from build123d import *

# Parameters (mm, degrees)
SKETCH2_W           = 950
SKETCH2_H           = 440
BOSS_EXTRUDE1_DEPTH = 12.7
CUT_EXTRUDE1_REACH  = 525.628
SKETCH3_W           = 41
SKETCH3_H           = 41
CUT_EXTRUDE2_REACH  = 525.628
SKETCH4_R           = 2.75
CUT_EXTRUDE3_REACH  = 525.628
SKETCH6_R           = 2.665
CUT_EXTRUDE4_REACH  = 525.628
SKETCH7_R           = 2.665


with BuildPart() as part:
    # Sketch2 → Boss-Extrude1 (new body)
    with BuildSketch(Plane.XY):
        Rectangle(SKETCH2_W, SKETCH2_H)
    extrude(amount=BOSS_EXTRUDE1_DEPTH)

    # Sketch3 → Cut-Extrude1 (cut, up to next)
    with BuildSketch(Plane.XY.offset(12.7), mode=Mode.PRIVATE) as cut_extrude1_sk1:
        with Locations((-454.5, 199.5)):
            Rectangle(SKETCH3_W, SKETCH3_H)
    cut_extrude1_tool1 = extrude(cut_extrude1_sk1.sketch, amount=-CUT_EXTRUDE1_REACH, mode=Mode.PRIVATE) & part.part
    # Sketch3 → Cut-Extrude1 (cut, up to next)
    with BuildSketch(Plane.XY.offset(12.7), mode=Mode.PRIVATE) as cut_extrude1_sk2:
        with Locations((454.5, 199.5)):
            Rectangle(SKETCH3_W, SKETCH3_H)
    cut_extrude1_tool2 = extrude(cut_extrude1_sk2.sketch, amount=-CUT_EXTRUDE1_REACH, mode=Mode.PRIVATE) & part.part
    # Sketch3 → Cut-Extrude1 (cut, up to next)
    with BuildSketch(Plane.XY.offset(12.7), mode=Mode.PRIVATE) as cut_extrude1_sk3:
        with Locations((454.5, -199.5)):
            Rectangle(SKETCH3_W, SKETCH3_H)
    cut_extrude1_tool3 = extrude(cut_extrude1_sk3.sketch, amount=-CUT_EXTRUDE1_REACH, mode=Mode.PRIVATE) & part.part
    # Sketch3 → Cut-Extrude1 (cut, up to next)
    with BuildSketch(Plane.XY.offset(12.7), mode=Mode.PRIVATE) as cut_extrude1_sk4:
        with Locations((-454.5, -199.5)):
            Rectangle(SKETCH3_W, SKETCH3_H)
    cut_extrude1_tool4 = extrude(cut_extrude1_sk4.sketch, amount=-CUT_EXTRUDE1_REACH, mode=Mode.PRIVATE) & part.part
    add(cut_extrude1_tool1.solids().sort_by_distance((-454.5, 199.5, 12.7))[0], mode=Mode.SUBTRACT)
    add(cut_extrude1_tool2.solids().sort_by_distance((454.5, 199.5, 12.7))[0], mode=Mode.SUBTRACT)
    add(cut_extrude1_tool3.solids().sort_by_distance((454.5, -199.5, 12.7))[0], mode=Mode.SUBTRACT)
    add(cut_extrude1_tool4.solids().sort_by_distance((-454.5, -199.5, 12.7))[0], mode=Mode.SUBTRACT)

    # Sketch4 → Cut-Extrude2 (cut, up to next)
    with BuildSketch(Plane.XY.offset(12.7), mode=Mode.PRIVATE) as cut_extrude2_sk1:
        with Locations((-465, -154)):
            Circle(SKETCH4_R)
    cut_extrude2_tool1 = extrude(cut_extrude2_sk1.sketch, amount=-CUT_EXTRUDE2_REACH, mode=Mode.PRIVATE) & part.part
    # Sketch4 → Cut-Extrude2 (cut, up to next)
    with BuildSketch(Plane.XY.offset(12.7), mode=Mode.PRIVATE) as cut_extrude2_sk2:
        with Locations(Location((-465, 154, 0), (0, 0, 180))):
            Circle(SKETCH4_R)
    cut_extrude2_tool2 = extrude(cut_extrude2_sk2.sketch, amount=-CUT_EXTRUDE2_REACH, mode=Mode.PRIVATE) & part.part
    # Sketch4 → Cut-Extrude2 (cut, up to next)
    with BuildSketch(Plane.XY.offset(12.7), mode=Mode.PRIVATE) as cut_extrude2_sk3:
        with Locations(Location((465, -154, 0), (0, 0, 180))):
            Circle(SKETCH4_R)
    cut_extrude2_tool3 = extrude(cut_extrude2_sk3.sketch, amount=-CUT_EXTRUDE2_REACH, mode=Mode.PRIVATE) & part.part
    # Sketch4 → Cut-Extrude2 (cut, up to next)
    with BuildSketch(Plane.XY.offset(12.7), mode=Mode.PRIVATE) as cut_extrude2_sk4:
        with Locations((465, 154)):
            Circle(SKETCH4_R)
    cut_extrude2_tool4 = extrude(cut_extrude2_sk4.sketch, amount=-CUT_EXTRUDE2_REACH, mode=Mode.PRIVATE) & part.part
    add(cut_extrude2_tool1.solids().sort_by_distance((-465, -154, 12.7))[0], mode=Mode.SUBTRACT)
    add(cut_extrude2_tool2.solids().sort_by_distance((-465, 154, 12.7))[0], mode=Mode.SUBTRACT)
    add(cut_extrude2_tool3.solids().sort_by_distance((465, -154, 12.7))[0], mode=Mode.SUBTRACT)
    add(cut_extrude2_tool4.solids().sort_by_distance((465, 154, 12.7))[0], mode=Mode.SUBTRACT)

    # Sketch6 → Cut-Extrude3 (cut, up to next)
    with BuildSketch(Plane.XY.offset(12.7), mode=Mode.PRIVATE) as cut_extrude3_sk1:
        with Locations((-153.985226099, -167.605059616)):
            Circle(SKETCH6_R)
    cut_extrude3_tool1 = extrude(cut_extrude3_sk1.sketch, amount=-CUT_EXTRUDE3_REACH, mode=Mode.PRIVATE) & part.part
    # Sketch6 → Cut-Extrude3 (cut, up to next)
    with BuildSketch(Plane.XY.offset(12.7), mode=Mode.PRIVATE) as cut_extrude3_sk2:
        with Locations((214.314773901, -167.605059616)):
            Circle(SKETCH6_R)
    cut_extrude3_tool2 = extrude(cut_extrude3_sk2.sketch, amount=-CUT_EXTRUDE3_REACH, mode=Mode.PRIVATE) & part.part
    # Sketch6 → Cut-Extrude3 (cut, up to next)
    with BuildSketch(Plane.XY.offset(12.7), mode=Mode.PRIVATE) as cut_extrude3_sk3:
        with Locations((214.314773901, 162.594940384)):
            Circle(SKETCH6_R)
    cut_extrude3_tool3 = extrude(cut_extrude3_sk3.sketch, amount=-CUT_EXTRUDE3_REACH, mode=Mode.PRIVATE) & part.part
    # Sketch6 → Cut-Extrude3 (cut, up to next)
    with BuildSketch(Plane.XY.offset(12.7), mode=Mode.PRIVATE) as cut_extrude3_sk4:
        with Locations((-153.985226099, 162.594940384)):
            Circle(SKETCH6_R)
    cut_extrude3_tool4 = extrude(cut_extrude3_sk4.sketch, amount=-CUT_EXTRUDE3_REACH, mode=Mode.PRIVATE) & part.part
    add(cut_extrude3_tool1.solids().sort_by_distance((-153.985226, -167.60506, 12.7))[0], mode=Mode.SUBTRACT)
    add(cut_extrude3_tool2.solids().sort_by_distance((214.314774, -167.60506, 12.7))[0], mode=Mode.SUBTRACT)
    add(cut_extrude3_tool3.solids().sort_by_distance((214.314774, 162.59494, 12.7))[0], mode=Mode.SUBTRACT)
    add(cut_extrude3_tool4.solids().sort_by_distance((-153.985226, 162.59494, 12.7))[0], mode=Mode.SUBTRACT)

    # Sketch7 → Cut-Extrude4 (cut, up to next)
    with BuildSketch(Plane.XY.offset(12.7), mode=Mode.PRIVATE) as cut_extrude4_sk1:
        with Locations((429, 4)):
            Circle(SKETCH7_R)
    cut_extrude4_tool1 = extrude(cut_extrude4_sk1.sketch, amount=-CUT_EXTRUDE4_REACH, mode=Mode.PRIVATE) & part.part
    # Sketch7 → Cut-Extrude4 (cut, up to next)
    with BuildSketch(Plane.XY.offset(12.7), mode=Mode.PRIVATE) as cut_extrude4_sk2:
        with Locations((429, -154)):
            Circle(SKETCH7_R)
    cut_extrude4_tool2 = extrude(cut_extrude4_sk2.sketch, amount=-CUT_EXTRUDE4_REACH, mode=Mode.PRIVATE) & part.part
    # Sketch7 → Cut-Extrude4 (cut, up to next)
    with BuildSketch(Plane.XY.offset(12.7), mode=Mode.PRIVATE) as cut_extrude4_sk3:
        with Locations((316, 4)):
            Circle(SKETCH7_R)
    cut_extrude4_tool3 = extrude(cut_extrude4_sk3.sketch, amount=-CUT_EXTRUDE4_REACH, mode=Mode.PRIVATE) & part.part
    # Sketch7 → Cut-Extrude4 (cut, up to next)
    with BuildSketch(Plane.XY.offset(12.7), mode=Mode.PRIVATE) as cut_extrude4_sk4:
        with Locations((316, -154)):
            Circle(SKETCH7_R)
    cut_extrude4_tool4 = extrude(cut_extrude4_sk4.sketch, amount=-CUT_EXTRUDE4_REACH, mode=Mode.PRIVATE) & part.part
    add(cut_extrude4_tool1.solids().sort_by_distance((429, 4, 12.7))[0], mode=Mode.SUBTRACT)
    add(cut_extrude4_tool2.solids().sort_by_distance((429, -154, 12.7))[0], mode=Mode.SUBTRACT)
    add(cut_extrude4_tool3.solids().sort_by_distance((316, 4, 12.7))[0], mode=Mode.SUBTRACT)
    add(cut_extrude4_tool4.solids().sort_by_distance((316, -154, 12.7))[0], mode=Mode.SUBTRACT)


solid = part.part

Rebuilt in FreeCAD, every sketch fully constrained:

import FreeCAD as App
import Part
import Sketcher
from FreeCAD import Vector

doc = App.newDocument("Part")
body = doc.addObject("PartDesign::Body", "Body")

# Sketch on XY plane
sketch1 = body.newObject("Sketcher::SketchObject", "Sketch")
sketch1.AttachmentSupport = (doc.getObject("XY_Plane"), [""])
sketch1.MapMode = "FlatFace"
sketch1.addGeometry([
    Part.LineSegment(Vector(-475, 220, 0), Vector(-475, -220, 0)),
    Part.LineSegment(Vector(-475, -220, 0), Vector(475, -220, 0)),
    Part.LineSegment(Vector(475, -220, 0), Vector(475, 220, 0)),
    Part.LineSegment(Vector(475, 220, 0), Vector(-475, 220, 0)),
], False)
sketch1.addConstraint([
    Sketcher.Constraint("Coincident", 0, 2, 1, 1),
    Sketcher.Constraint("Coincident", 1, 2, 2, 1),
    Sketcher.Constraint("Coincident", 2, 2, 3, 1),
    Sketcher.Constraint("Coincident", 3, 2, 0, 1),
    Sketcher.Constraint("Vertical", 0),
    Sketcher.Constraint("Horizontal", 1),
    Sketcher.Constraint("Vertical", 2),
    Sketcher.Constraint("Horizontal", 3),
    Sketcher.Constraint("Symmetric", 0, 2, 2, 2, -1, 1),
    Sketcher.Constraint("DistanceX", 1, 1, 1, 2, 950.0),
    Sketcher.Constraint("DistanceY", 0, 2, 0, 1, 440.0),
])
pad1 = body.newObject("PartDesign::Pad", "Pad")
pad1.Profile = sketch1
pad1.Length = 12.7

# Sketch on XY plane
sketch2 = body.newObject("Sketcher::SketchObject", "Sketch001")
sketch2.AttachmentSupport = (doc.getObject("XY_Plane"), [""])
sketch2.MapMode = "FlatFace"
sketch2.AttachmentOffset = App.Placement(Vector(0, 0, 12.7), App.Rotation())
sketch2.addGeometry([
    Part.LineSegment(Vector(-475, 220, 0), Vector(-475, 179, 0)),
    Part.LineSegment(Vector(-475, 179, 0), Vector(-434, 179, 0)),
    Part.LineSegment(Vector(-434, 179, 0), Vector(-434, 220, 0)),
    Part.LineSegment(Vector(-434, 220, 0), Vector(-475, 220, 0)),
], False)
sketch2.addConstraint([
    Sketcher.Constraint("Coincident", 0, 2, 1, 1),
    Sketcher.Constraint("Coincident", 1, 2, 2, 1),
    Sketcher.Constraint("Coincident", 2, 2, 3, 1),
    Sketcher.Constraint("Coincident", 3, 2, 0, 1),
    Sketcher.Constraint("Vertical", 0),
    Sketcher.Constraint("Horizontal", 1),
    Sketcher.Constraint("Vertical", 2),
    Sketcher.Constraint("Horizontal", 3),
    Sketcher.Constraint("Equal", 3, 0),
    Sketcher.Constraint("DistanceX", 1, 1, 1, 2, 41.0),
    Sketcher.Constraint("DistanceX", 0, 2, -1, 1, 475.0),
    Sketcher.Constraint("DistanceY", -1, 1, 0, 2, 179.0),
])
pocket1 = body.newObject("PartDesign::Pocket", "Pocket")
pocket1.Profile = sketch2
pocket1.Type = "UpToFirst"

# Sketch on XY plane
sketch3 = body.newObject("Sketcher::SketchObject", "Sketch002")
sketch3.AttachmentSupport = (doc.getObject("XY_Plane"), [""])
sketch3.MapMode = "FlatFace"
sketch3.AttachmentOffset = App.Placement(Vector(0, 0, 12.7), App.Rotation())
sketch3.addGeometry([
    Part.LineSegment(Vector(434, 220, 0), Vector(434, 179, 0)),
    Part.LineSegment(Vector(434, 179, 0), Vector(475, 179, 0)),
    Part.LineSegment(Vector(475, 179, 0), Vector(475, 220, 0)),
    Part.LineSegment(Vector(475, 220, 0), Vector(434, 220, 0)),
], False)
sketch3.addConstraint([
    Sketcher.Constraint("Coincident", 0, 2, 1, 1),
    Sketcher.Constraint("Coincident", 1, 2, 2, 1),
    Sketcher.Constraint("Coincident", 2, 2, 3, 1),
    Sketcher.Constraint("Coincident", 3, 2, 0, 1),
    Sketcher.Constraint("Vertical", 0),
    Sketcher.Constraint("Horizontal", 1),
    Sketcher.Constraint("Vertical", 2),
    Sketcher.Constraint("Horizontal", 3),
    Sketcher.Constraint("Equal", 3, 0),
    Sketcher.Constraint("DistanceX", 1, 1, 1, 2, 41.0),
    Sketcher.Constraint("DistanceX", -1, 1, 0, 2, 434.0),
    Sketcher.Constraint("DistanceY", -1, 1, 0, 2, 179.0),
])
pocket2 = body.newObject("PartDesign::Pocket", "Pocket001")
pocket2.Profile = sketch3
pocket2.Type = "UpToFirst"

# Sketch on XY plane
sketch4 = body.newObject("Sketcher::SketchObject", "Sketch003")
sketch4.AttachmentSupport = (doc.getObject("XY_Plane"), [""])
sketch4.MapMode = "FlatFace"
sketch4.AttachmentOffset = App.Placement(Vector(0, 0, 12.7), App.Rotation())
sketch4.addGeometry([
    Part.LineSegment(Vector(434, -179, 0), Vector(434, -220, 0)),
    Part.LineSegment(Vector(434, -220, 0), Vector(475, -220, 0)),
    Part.LineSegment(Vector(475, -220, 0), Vector(475, -179, 0)),
    Part.LineSegment(Vector(475, -179, 0), Vector(434, -179, 0)),
], False)
sketch4.addConstraint([
    Sketcher.Constraint("Coincident", 0, 2, 1, 1),
    Sketcher.Constraint("Coincident", 1, 2, 2, 1),
    Sketcher.Constraint("Coincident", 2, 2, 3, 1),
    Sketcher.Constraint("Coincident", 3, 2, 0, 1),
    Sketcher.Constraint("Vertical", 0),
    Sketcher.Constraint("Horizontal", 1),
    Sketcher.Constraint("Vertical", 2),
    Sketcher.Constraint("Horizontal", 3),
    Sketcher.Constraint("Equal", 3, 0),
    Sketcher.Constraint("DistanceX", 1, 1, 1, 2, 41.0),
    Sketcher.Constraint("DistanceX", -1, 1, 0, 2, 434.0),
    Sketcher.Constraint("DistanceY", 0, 2, -1, 1, 220.0),
])
pocket3 = body.newObject("PartDesign::Pocket", "Pocket002")
pocket3.Profile = sketch4
pocket3.Type = "UpToFirst"

# Sketch on XY plane
sketch5 = body.newObject("Sketcher::SketchObject", "Sketch004")
sketch5.AttachmentSupport = (doc.getObject("XY_Plane"), [""])
sketch5.MapMode = "FlatFace"
sketch5.AttachmentOffset = App.Placement(Vector(0, 0, 12.7), App.Rotation())
sketch5.addGeometry([
    Part.LineSegment(Vector(-475, -179, 0), Vector(-475, -220, 0)),
    Part.LineSegment(Vector(-475, -220, 0), Vector(-434, -220, 0)),
    Part.LineSegment(Vector(-434, -220, 0), Vector(-434, -179, 0)),
    Part.LineSegment(Vector(-434, -179, 0), Vector(-475, -179, 0)),
], False)
sketch5.addConstraint([
    Sketcher.Constraint("Coincident", 0, 2, 1, 1),
    Sketcher.Constraint("Coincident", 1, 2, 2, 1),
    Sketcher.Constraint("Coincident", 2, 2, 3, 1),
    Sketcher.Constraint("Coincident", 3, 2, 0, 1),
    Sketcher.Constraint("Vertical", 0),
    Sketcher.Constraint("Horizontal", 1),
    Sketcher.Constraint("Vertical", 2),
    Sketcher.Constraint("Horizontal", 3),
    Sketcher.Constraint("Equal", 3, 0),
    Sketcher.Constraint("DistanceX", 1, 1, 1, 2, 41.0),
    Sketcher.Constraint("DistanceX", 0, 2, -1, 1, 475.0),
    Sketcher.Constraint("DistanceY", 0, 2, -1, 1, 220.0),
])
pocket4 = body.newObject("PartDesign::Pocket", "Pocket003")
pocket4.Profile = sketch5
pocket4.Type = "UpToFirst"

# Sketch on XY plane
sketch6 = body.newObject("Sketcher::SketchObject", "Sketch005")
sketch6.AttachmentSupport = (doc.getObject("XY_Plane"), [""])
sketch6.MapMode = "FlatFace"
sketch6.AttachmentOffset = App.Placement(Vector(0, 0, 12.7), App.Rotation())
sketch6.addGeometry(Part.Circle(Vector(-465, -154, 0), Vector(0, 0, 1), 2.75), False)
sketch6.addConstraint([
    Sketcher.Constraint("Diameter", 0, 5.5),
    Sketcher.Constraint("DistanceX", 0, 3, -1, 1, 465.0),
    Sketcher.Constraint("DistanceY", 0, 3, -1, 1, 154.0),
])
pocket5 = body.newObject("PartDesign::Pocket", "Pocket004")
pocket5.Profile = sketch6
pocket5.Type = "UpToFirst"

# Sketch on XY plane
sketch7 = body.newObject("Sketcher::SketchObject", "Sketch006")
sketch7.AttachmentSupport = (doc.getObject("XY_Plane"), [""])
sketch7.MapMode = "FlatFace"
sketch7.AttachmentOffset = App.Placement(Vector(0, 0, 12.7), App.Rotation())
sketch7.addGeometry(Part.Circle(Vector(-465, 154, 0), Vector(0, 0, 1), 2.75), False)
sketch7.addConstraint([
    Sketcher.Constraint("Diameter", 0, 5.5),
    Sketcher.Constraint("DistanceX", 0, 3, -1, 1, 465.0),
    Sketcher.Constraint("DistanceY", -1, 1, 0, 3, 154.0),
])
pocket6 = body.newObject("PartDesign::Pocket", "Pocket005")
pocket6.Profile = sketch7
pocket6.Type = "UpToFirst"

# Sketch on XY plane
sketch8 = body.newObject("Sketcher::SketchObject", "Sketch007")
sketch8.AttachmentSupport = (doc.getObject("XY_Plane"), [""])
sketch8.MapMode = "FlatFace"
sketch8.AttachmentOffset = App.Placement(Vector(0, 0, 12.7), App.Rotation())
sketch8.addGeometry(Part.Circle(Vector(465, -154, 0), Vector(0, 0, 1), 2.75), False)
sketch8.addConstraint([
    Sketcher.Constraint("Diameter", 0, 5.5),
    Sketcher.Constraint("DistanceX", -1, 1, 0, 3, 465.0),
    Sketcher.Constraint("DistanceY", 0, 3, -1, 1, 154.0),
])
pocket7 = body.newObject("PartDesign::Pocket", "Pocket006")
pocket7.Profile = sketch8
pocket7.Type = "UpToFirst"

# Sketch on XY plane
sketch9 = body.newObject("Sketcher::SketchObject", "Sketch008")
sketch9.AttachmentSupport = (doc.getObject("XY_Plane"), [""])
sketch9.MapMode = "FlatFace"
sketch9.AttachmentOffset = App.Placement(Vector(0, 0, 12.7), App.Rotation())
sketch9.addGeometry(Part.Circle(Vector(465, 154, 0), Vector(0, 0, 1), 2.75), False)
sketch9.addConstraint([
    Sketcher.Constraint("Diameter", 0, 5.5),
    Sketcher.Constraint("DistanceX", -1, 1, 0, 3, 465.0),
    Sketcher.Constraint("DistanceY", -1, 1, 0, 3, 154.0),
])
pocket8 = body.newObject("PartDesign::Pocket", "Pocket007")
pocket8.Profile = sketch9
pocket8.Type = "UpToFirst"

# Sketch on XY plane
sketch10 = body.newObject("Sketcher::SketchObject", "Sketch009")
sketch10.AttachmentSupport = (doc.getObject("XY_Plane"), [""])
sketch10.MapMode = "FlatFace"
sketch10.AttachmentOffset = App.Placement(Vector(0, 0, 12.7), App.Rotation())
sketch10.addGeometry(Part.Circle(Vector(-153.985226, -167.60506, 0), Vector(0, 0, 1), 2.665), False)
sketch10.addConstraint([
    Sketcher.Constraint("Diameter", 0, 5.33),
    Sketcher.Constraint("DistanceY", 0, 3, -1, 1, 167.60506),
    Sketcher.Constraint("DistanceX", 0, 3, -1, 1, 153.985226),
])
pocket9 = body.newObject("PartDesign::Pocket", "Pocket008")
pocket9.Profile = sketch10
pocket9.Type = "UpToFirst"

# Sketch on XY plane
sketch11 = body.newObject("Sketcher::SketchObject", "Sketch010")
sketch11.AttachmentSupport = (doc.getObject("XY_Plane"), [""])
sketch11.MapMode = "FlatFace"
sketch11.AttachmentOffset = App.Placement(Vector(0, 0, 12.7), App.Rotation())
sketch11.addGeometry(Part.Circle(Vector(214.314774, -167.60506, 0), Vector(0, 0, 1), 2.665), False)
sketch11.addConstraint([
    Sketcher.Constraint("Diameter", 0, 5.33),
    Sketcher.Constraint("DistanceY", 0, 3, -1, 1, 167.60506),
    Sketcher.Constraint("DistanceX", -1, 1, 0, 3, 214.314774),
])
pocket10 = body.newObject("PartDesign::Pocket", "Pocket009")
pocket10.Profile = sketch11
pocket10.Type = "UpToFirst"

# Sketch on XY plane
sketch12 = body.newObject("Sketcher::SketchObject", "Sketch011")
sketch12.AttachmentSupport = (doc.getObject("XY_Plane"), [""])
sketch12.MapMode = "FlatFace"
sketch12.AttachmentOffset = App.Placement(Vector(0, 0, 12.7), App.Rotation())
sketch12.addGeometry(Part.Circle(Vector(214.314774, 162.59494, 0), Vector(0, 0, 1), 2.665), False)
sketch12.addConstraint([
    Sketcher.Constraint("Diameter", 0, 5.33),
    Sketcher.Constraint("DistanceY", -1, 1, 0, 3, 162.59494),
    Sketcher.Constraint("DistanceX", -1, 1, 0, 3, 214.314774),
])
pocket11 = body.newObject("PartDesign::Pocket", "Pocket010")
pocket11.Profile = sketch12
pocket11.Type = "UpToFirst"

# Sketch on XY plane
sketch13 = body.newObject("Sketcher::SketchObject", "Sketch012")
sketch13.AttachmentSupport = (doc.getObject("XY_Plane"), [""])
sketch13.MapMode = "FlatFace"
sketch13.AttachmentOffset = App.Placement(Vector(0, 0, 12.7), App.Rotation())
sketch13.addGeometry(Part.Circle(Vector(-153.985226, 162.59494, 0), Vector(0, 0, 1), 2.665), False)
sketch13.addConstraint([
    Sketcher.Constraint("Diameter", 0, 5.33),
    Sketcher.Constraint("DistanceY", -1, 1, 0, 3, 162.59494),
    Sketcher.Constraint("DistanceX", 0, 3, -1, 1, 153.985226),
])
pocket12 = body.newObject("PartDesign::Pocket", "Pocket011")
pocket12.Profile = sketch13
pocket12.Type = "UpToFirst"

# Sketch on XY plane
sketch14 = body.newObject("Sketcher::SketchObject", "Sketch013")
sketch14.AttachmentSupport = (doc.getObject("XY_Plane"), [""])
sketch14.MapMode = "FlatFace"
sketch14.AttachmentOffset = App.Placement(Vector(0, 0, 12.7), App.Rotation())
sketch14.addGeometry(Part.Circle(Vector(429, 4, 0), Vector(0, 0, 1), 2.665), False)
sketch14.addConstraint([
    Sketcher.Constraint("Diameter", 0, 5.33),
    Sketcher.Constraint("DistanceX", -1, 1, 0, 3, 429.0),
    Sketcher.Constraint("DistanceY", -1, 1, 0, 3, 4.0),
])
pocket13 = body.newObject("PartDesign::Pocket", "Pocket012")
pocket13.Profile = sketch14
pocket13.Type = "UpToFirst"

# Sketch on XY plane
sketch15 = body.newObject("Sketcher::SketchObject", "Sketch014")
sketch15.AttachmentSupport = (doc.getObject("XY_Plane"), [""])
sketch15.MapMode = "FlatFace"
sketch15.AttachmentOffset = App.Placement(Vector(0, 0, 12.7), App.Rotation())
sketch15.addGeometry(Part.Circle(Vector(429, -154, 0), Vector(0, 0, 1), 2.665), False)
sketch15.addConstraint([
    Sketcher.Constraint("Diameter", 0, 5.33),
    Sketcher.Constraint("DistanceX", -1, 1, 0, 3, 429.0),
    Sketcher.Constraint("DistanceY", 0, 3, -1, 1, 154.0),
])
pocket14 = body.newObject("PartDesign::Pocket", "Pocket013")
pocket14.Profile = sketch15
pocket14.Type = "UpToFirst"

# Sketch on XY plane
sketch16 = body.newObject("Sketcher::SketchObject", "Sketch015")
sketch16.AttachmentSupport = (doc.getObject("XY_Plane"), [""])
sketch16.MapMode = "FlatFace"
sketch16.AttachmentOffset = App.Placement(Vector(0, 0, 12.7), App.Rotation())
sketch16.addGeometry(Part.Circle(Vector(316, 4, 0), Vector(0, 0, 1), 2.665), False)
sketch16.addConstraint([
    Sketcher.Constraint("Diameter", 0, 5.33),
    Sketcher.Constraint("DistanceX", -1, 1, 0, 3, 316.0),
    Sketcher.Constraint("DistanceY", -1, 1, 0, 3, 4.0),
])
pocket15 = body.newObject("PartDesign::Pocket", "Pocket014")
pocket15.Profile = sketch16
pocket15.Type = "UpToFirst"

# Sketch on XY plane
sketch17 = body.newObject("Sketcher::SketchObject", "Sketch016")
sketch17.AttachmentSupport = (doc.getObject("XY_Plane"), [""])
sketch17.MapMode = "FlatFace"
sketch17.AttachmentOffset = App.Placement(Vector(0, 0, 12.7), App.Rotation())
sketch17.addGeometry(Part.Circle(Vector(316, -154, 0), Vector(0, 0, 1), 2.665), False)
sketch17.addConstraint([
    Sketcher.Constraint("Diameter", 0, 5.33),
    Sketcher.Constraint("DistanceX", -1, 1, 0, 3, 316.0),
    Sketcher.Constraint("DistanceY", 0, 3, -1, 1, 154.0),
])
pocket16 = body.newObject("PartDesign::Pocket", "Pocket015")
pocket16.Profile = sketch17
pocket16.Type = "UpToFirst"

doc.recompute()
